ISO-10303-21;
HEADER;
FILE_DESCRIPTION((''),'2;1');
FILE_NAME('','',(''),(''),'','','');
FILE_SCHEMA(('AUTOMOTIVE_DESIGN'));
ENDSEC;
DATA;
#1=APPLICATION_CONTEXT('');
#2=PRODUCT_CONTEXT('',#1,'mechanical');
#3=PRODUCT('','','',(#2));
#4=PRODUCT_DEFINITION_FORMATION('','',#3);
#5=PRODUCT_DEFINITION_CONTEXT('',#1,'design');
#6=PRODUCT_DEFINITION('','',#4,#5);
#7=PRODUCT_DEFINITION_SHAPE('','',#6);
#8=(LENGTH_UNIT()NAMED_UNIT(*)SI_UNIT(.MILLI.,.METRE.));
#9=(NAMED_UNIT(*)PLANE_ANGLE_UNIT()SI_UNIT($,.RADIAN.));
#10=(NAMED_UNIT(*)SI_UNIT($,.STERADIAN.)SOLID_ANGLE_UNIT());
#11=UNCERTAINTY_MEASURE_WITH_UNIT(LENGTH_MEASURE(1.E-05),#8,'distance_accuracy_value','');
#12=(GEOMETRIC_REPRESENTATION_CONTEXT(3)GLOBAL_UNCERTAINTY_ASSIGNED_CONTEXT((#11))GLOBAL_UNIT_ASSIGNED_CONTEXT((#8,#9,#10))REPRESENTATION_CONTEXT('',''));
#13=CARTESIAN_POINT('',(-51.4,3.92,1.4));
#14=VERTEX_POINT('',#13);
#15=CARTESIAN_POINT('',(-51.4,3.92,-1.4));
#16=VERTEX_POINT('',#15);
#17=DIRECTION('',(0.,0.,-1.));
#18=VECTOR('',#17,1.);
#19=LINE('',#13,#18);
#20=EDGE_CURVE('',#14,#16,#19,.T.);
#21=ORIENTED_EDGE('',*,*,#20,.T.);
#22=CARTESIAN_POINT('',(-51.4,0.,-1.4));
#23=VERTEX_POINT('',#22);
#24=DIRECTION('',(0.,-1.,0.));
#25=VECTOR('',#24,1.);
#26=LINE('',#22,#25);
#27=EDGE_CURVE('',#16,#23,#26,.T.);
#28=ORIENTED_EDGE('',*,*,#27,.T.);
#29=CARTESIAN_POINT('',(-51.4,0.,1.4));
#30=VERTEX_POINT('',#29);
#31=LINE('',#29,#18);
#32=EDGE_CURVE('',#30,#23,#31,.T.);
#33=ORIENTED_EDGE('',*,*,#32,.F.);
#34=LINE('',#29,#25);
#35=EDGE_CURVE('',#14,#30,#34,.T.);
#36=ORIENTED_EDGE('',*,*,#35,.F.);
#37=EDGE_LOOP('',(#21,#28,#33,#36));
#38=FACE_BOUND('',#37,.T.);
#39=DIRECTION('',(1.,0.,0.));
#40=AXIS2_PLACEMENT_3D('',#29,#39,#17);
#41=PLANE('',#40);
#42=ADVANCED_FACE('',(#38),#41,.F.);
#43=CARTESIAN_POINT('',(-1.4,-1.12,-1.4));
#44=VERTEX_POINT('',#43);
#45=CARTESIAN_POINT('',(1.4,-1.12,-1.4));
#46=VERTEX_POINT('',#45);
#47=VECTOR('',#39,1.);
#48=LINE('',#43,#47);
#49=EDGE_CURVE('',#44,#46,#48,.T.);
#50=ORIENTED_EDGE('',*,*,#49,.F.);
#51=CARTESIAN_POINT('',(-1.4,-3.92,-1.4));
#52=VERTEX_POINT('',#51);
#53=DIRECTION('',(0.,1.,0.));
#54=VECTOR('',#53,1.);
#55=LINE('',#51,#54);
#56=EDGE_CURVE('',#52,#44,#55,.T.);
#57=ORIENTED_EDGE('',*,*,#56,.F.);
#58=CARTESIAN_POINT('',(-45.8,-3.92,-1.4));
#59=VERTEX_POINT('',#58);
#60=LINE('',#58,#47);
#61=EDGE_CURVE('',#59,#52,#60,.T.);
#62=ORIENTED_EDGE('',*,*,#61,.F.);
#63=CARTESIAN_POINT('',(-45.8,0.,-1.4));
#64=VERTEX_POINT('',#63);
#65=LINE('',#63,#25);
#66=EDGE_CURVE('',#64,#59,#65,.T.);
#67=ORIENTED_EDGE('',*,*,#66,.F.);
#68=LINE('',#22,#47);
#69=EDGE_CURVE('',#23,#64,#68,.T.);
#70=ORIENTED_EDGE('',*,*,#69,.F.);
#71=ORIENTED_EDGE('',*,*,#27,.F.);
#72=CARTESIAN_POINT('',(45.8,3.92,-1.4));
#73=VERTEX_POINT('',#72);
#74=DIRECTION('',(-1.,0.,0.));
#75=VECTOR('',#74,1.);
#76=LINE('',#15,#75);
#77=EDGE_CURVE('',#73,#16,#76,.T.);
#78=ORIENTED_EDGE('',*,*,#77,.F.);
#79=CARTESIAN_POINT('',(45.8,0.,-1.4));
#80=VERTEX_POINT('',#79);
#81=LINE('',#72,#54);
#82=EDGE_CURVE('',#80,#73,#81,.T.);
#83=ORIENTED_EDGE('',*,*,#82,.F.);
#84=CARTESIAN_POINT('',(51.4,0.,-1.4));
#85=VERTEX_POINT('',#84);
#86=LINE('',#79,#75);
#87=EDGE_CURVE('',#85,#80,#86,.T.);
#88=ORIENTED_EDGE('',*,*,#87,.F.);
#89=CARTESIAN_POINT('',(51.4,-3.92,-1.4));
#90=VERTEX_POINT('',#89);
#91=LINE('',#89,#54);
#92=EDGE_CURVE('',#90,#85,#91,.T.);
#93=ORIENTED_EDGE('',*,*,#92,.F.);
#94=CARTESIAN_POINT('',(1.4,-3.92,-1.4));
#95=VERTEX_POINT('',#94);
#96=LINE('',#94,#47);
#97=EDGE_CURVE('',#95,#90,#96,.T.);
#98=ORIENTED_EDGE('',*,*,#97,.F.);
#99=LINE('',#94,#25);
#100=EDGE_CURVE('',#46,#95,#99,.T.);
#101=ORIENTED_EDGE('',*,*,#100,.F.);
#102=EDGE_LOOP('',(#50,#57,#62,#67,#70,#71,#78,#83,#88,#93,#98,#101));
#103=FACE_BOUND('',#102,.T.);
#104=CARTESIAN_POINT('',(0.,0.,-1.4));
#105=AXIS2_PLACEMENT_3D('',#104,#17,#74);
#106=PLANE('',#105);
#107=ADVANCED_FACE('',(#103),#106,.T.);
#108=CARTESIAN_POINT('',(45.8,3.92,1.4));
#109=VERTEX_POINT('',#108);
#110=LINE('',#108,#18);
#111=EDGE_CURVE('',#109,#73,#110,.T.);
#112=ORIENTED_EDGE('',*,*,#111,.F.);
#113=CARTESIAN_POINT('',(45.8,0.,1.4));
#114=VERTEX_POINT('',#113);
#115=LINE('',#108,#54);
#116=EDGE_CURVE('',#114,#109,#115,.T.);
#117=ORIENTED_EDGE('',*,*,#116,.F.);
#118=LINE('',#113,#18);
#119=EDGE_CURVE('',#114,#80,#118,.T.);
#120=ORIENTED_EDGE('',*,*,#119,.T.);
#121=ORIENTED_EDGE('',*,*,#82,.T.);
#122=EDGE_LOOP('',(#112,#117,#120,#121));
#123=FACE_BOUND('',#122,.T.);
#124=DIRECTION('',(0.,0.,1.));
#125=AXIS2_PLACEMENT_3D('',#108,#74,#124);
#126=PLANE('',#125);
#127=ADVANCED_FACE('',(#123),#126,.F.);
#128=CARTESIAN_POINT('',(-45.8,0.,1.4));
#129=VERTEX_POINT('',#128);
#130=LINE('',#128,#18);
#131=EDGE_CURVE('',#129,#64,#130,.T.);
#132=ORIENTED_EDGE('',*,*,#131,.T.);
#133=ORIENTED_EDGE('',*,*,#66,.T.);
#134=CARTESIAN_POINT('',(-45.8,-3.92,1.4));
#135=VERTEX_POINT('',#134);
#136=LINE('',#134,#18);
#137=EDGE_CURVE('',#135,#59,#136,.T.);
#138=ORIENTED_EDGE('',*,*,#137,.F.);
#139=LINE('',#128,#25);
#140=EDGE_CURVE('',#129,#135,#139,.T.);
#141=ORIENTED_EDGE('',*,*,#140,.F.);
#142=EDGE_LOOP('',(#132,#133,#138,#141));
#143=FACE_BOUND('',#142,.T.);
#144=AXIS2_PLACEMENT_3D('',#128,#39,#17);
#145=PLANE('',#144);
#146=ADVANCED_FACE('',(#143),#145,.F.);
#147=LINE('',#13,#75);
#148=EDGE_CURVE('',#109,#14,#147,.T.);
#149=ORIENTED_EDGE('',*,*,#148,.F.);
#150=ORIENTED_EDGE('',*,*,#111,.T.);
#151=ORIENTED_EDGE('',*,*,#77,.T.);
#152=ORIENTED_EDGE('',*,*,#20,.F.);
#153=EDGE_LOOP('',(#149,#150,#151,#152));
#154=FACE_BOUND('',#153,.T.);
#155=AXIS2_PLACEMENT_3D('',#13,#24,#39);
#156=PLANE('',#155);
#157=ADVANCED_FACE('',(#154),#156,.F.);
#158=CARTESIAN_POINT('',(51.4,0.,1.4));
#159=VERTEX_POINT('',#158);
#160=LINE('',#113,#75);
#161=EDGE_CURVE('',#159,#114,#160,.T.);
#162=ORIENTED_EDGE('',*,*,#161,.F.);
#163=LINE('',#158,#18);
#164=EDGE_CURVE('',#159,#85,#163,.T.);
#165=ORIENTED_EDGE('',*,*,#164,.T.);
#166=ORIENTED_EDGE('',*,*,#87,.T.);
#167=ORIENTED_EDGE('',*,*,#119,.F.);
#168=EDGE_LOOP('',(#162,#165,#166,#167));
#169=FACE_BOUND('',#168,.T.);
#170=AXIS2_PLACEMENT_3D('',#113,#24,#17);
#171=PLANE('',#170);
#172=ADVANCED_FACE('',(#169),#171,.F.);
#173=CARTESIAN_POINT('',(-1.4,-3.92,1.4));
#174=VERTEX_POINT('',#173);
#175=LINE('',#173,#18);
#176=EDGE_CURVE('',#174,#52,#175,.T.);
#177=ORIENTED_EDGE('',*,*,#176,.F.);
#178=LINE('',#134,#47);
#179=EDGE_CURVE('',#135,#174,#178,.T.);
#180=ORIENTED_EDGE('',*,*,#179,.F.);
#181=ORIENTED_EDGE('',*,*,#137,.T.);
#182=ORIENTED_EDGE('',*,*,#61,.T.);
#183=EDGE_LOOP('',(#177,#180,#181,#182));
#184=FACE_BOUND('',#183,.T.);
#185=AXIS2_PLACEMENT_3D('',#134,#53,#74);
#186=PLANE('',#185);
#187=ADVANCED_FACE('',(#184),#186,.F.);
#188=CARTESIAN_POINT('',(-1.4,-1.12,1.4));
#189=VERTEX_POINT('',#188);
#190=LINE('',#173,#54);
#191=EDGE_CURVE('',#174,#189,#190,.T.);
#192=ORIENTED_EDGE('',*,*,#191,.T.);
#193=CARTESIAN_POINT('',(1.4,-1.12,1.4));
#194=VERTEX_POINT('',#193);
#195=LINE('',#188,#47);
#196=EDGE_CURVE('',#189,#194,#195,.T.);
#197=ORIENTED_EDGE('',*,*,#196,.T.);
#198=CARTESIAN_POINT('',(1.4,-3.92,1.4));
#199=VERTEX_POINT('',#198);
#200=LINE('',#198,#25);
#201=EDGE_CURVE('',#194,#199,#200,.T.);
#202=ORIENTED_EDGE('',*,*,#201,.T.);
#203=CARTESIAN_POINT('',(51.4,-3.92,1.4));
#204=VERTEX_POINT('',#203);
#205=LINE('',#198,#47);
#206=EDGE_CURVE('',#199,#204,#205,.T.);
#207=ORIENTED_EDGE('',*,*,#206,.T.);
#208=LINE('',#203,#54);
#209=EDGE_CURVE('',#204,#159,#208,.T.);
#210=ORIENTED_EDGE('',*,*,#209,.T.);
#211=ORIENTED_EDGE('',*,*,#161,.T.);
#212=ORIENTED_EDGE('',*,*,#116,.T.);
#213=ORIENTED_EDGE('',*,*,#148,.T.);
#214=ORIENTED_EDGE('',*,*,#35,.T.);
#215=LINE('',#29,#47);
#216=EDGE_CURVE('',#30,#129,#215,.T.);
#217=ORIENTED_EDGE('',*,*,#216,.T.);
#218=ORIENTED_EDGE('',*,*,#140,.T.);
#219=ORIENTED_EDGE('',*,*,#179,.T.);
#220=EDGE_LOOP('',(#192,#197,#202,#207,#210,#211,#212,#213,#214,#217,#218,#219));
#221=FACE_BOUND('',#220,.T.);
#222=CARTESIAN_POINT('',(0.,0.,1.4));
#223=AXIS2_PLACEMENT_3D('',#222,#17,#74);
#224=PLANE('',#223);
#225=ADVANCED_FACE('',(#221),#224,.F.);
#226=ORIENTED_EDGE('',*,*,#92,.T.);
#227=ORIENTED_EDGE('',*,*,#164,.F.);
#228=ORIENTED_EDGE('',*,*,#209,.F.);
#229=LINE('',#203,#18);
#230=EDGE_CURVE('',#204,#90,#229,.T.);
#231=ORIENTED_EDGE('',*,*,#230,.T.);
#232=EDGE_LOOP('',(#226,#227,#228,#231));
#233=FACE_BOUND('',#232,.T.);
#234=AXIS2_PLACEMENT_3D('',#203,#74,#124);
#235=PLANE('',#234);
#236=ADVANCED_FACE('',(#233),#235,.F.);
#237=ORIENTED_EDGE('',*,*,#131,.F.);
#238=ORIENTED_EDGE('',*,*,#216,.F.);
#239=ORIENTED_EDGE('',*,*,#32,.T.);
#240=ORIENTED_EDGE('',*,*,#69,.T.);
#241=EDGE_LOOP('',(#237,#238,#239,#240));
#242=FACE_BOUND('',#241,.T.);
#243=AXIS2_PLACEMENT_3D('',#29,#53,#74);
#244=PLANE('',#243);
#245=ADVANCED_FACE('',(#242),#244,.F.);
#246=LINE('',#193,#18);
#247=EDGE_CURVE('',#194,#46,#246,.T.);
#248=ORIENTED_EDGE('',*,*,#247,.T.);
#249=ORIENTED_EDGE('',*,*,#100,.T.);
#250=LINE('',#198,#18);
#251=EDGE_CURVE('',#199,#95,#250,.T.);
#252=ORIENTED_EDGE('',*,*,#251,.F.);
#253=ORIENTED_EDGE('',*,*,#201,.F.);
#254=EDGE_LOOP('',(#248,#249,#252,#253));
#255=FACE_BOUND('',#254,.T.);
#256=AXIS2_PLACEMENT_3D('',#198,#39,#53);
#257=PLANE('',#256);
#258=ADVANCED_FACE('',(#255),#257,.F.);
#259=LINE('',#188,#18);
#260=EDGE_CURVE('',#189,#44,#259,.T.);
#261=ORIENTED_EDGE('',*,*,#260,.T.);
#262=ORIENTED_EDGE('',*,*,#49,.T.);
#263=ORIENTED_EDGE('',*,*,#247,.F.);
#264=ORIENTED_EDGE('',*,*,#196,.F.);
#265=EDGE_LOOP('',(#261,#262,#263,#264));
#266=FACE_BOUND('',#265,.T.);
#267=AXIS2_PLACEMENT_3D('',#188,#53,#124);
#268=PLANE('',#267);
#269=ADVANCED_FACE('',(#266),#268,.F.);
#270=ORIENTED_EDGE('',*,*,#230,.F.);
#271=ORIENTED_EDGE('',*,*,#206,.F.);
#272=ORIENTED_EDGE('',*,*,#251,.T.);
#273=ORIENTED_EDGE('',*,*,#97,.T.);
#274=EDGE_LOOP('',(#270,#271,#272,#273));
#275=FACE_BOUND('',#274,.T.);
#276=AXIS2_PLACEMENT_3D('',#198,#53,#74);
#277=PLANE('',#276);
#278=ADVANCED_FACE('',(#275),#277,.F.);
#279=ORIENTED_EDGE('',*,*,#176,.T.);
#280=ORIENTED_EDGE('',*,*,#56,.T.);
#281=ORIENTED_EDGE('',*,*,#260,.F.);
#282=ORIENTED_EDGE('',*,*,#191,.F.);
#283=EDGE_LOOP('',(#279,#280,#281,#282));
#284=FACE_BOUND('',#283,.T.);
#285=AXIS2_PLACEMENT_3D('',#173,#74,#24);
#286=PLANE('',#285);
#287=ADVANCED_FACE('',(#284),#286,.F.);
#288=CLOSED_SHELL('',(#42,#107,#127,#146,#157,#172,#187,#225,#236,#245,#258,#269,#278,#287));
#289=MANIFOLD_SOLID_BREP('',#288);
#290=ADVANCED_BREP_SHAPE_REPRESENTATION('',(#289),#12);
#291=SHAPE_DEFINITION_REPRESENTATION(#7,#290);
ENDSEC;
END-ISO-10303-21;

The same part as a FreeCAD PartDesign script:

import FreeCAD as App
import Part
import Sketcher
Q = App.Units.Quantity


def add_polygon(sketch, points):
    """Adds a closed chain of lines whose ends are joined by coincident constraints."""
    first, n = sketch.GeometryCount, len(points)
    for a, b in zip(points, points[1:] + points[:1]):
        sketch.addGeometry(Part.LineSegment(App.Vector(*a, 0), App.Vector(*b, 0)), False)
    for i in range(n):
        sketch.addConstraint(Sketcher.Constraint("Coincident", first + i, 2, first + (i + 1) % n, 1))

doc = App.newDocument("Part")
body = doc.addObject("PartDesign::Body", "Body")

# Sketch on XY plane
sketch1 = body.newObject("Sketcher::SketchObject", "Sketch")
sketch1.AttachmentSupport = (doc.getObject("XY_Plane"), [""])
sketch1.MapMode = "FlatFace"
add_polygon(sketch1, [(-51.4, 0), (-45.8, 0), (-45.8, -3.9), (-1.4, -3.9), (-1.4, -1.1), (1.4, -1.1), (1.4, -3.9), (51.4, -3.9), (51.4, 0), (45.8, 0), (45.8, 3.9), (-51.4, 3.9)])  # lines 0-11
sketch1.addConstraint([
    Sketcher.Constraint("Horizontal", 0),
    Sketcher.Constraint("Vertical", 1),
    Sketcher.Constraint("Horizontal", 2),
    Sketcher.Constraint("Vertical", 3),
    Sketcher.Constraint("Horizontal", 4),
    Sketcher.Constraint("Vertical", 5),
    Sketcher.Constraint("Horizontal", 6),
    Sketcher.Constraint("Vertical", 7),
    Sketcher.Constraint("Horizontal", 8),
    Sketcher.Constraint("Vertical", 9),
    Sketcher.Constraint("Horizontal", 10),
    Sketcher.Constraint("Vertical", 11),
    Sketcher.Constraint("Symmetric", 0, 2, 8, 2, -1, 1),
    Sketcher.Constraint("Symmetric", 6, 2, 10, 2, -1, 1),
    Sketcher.Constraint("Symmetric", 2, 2, 5, 2, -2),
    Sketcher.Constraint("PointOnObject", 0, 2, -1),
    Sketcher.Constraint("Equal", 4, 3),
    Sketcher.Constraint("DistanceX", 6, 1, 6, 2, Q("50 mm")),
    Sketcher.Constraint("DistanceX", 0, 1, 0, 2, Q("5.6 mm")),
    Sketcher.Constraint("DistanceX", 4, 1, 4, 2, Q("2.8 mm")),
    Sketcher.Constraint("DistanceY", 1, 2, 1, 1, Q("3.92 mm")),
])
pad1 = body.newObject("PartDesign::Pad", "Pad")
pad1.Profile = sketch1
pad1.Length = 2.8
pad1.Midplane = True

doc.recompute()
